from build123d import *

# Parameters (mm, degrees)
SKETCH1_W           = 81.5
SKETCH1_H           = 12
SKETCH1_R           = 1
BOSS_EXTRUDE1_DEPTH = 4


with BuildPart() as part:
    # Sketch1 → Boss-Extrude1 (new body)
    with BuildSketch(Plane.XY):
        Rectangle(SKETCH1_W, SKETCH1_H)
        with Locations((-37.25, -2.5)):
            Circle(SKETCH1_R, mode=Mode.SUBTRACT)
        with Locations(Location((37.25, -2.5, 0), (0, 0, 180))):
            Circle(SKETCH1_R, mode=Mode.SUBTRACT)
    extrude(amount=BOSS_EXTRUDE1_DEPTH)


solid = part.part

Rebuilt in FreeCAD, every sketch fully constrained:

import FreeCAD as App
import Part
import Sketcher
Q = App.Units.Quantity

doc = App.newDocument("Part")
body = doc.addObject("PartDesign::Body", "Body")

sketch1 = doc.addObject("Sketcher::SketchObject", "Sketch")
body.addObject(sketch1)
sketch1.AttachmentSupport = (doc.XY_Plane, [""])
sketch1.MapMode = "FlatFace"
sketch1.addGeometry(Part.LineSegment(App.Vector(-40.75, 6, 0), App.Vector(-40.75, -6, 0)), False)
sketch1.addGeometry(Part.LineSegment(App.Vector(-40.75, -6, 0), App.Vector(40.75, -6, 0)), False)
sketch1.addGeometry(Part.LineSegment(App.Vector(40.75, -6, 0), App.Vector(40.75, 6, 0)), False)
sketch1.addGeometry(Part.LineSegment(App.Vector(40.75, 6, 0), App.Vector(-40.75, 6, 0)), False)
sketch1.addGeometry(Part.Circle(App.Vector(-37.25, -2.5, 0), App.Vector(0, 0, 1), 1), False)
sketch1.addGeometry(Part.Circle(App.Vector(37.25, -2.5, 0), App.Vector(0, 0, 1), 1), False)
sketch1.addConstraint(Sketcher.Constraint("Coincident", 0, 2, 1, 1))
sketch1.addConstraint(Sketcher.Constraint("Coincident", 1, 2, 2, 1))
sketch1.addConstraint(Sketcher.Constraint("Coincident", 2, 2, 3, 1))
sketch1.addConstraint(Sketcher.Constraint("Coincident", 3, 2, 0, 1))
sketch1.addConstraint(Sketcher.Constraint("Vertical", 0))
sketch1.addConstraint(Sketcher.Constraint("Horizontal", 1))
sketch1.addConstraint(Sketcher.Constraint("Vertical", 2))
sketch1.addConstraint(Sketcher.Constraint("Horizontal", 3))
sketch1.addConstraint(Sketcher.Constraint("Equal", 4, 5))
sketch1.addConstraint(Sketcher.Constraint("Symmetric", 0, 2, 2, 2, -1, 1))
sketch1.addConstraint(Sketcher.Constraint("Symmetric", 4, 3, 5, 3, -2))
sketch1.addConstraint(Sketcher.Constraint("Diameter", 4, Q("2 mm")))
sketch1.addConstraint(Sketcher.Constraint("DistanceY", 0, 2, 0, 1, Q("12 mm")))
sketch1.addConstraint(Sketcher.Constraint("DistanceX", 1, 1, 1, 2, Q("81.5 mm")))
sketch1.addConstraint(Sketcher.Constraint("DistanceX", 0, 2, 5, 3, Q("78 mm")))
sketch1.addConstraint(Sketcher.Constraint("DistanceY", 4, 3, -1, 1, Q("2.5 mm")))
pad1 = doc.addObject("PartDesign::Pad", "Pad")
body.addObject(pad1)
pad1.Profile = sketch1
pad1.Length = 4

doc.recompute()
